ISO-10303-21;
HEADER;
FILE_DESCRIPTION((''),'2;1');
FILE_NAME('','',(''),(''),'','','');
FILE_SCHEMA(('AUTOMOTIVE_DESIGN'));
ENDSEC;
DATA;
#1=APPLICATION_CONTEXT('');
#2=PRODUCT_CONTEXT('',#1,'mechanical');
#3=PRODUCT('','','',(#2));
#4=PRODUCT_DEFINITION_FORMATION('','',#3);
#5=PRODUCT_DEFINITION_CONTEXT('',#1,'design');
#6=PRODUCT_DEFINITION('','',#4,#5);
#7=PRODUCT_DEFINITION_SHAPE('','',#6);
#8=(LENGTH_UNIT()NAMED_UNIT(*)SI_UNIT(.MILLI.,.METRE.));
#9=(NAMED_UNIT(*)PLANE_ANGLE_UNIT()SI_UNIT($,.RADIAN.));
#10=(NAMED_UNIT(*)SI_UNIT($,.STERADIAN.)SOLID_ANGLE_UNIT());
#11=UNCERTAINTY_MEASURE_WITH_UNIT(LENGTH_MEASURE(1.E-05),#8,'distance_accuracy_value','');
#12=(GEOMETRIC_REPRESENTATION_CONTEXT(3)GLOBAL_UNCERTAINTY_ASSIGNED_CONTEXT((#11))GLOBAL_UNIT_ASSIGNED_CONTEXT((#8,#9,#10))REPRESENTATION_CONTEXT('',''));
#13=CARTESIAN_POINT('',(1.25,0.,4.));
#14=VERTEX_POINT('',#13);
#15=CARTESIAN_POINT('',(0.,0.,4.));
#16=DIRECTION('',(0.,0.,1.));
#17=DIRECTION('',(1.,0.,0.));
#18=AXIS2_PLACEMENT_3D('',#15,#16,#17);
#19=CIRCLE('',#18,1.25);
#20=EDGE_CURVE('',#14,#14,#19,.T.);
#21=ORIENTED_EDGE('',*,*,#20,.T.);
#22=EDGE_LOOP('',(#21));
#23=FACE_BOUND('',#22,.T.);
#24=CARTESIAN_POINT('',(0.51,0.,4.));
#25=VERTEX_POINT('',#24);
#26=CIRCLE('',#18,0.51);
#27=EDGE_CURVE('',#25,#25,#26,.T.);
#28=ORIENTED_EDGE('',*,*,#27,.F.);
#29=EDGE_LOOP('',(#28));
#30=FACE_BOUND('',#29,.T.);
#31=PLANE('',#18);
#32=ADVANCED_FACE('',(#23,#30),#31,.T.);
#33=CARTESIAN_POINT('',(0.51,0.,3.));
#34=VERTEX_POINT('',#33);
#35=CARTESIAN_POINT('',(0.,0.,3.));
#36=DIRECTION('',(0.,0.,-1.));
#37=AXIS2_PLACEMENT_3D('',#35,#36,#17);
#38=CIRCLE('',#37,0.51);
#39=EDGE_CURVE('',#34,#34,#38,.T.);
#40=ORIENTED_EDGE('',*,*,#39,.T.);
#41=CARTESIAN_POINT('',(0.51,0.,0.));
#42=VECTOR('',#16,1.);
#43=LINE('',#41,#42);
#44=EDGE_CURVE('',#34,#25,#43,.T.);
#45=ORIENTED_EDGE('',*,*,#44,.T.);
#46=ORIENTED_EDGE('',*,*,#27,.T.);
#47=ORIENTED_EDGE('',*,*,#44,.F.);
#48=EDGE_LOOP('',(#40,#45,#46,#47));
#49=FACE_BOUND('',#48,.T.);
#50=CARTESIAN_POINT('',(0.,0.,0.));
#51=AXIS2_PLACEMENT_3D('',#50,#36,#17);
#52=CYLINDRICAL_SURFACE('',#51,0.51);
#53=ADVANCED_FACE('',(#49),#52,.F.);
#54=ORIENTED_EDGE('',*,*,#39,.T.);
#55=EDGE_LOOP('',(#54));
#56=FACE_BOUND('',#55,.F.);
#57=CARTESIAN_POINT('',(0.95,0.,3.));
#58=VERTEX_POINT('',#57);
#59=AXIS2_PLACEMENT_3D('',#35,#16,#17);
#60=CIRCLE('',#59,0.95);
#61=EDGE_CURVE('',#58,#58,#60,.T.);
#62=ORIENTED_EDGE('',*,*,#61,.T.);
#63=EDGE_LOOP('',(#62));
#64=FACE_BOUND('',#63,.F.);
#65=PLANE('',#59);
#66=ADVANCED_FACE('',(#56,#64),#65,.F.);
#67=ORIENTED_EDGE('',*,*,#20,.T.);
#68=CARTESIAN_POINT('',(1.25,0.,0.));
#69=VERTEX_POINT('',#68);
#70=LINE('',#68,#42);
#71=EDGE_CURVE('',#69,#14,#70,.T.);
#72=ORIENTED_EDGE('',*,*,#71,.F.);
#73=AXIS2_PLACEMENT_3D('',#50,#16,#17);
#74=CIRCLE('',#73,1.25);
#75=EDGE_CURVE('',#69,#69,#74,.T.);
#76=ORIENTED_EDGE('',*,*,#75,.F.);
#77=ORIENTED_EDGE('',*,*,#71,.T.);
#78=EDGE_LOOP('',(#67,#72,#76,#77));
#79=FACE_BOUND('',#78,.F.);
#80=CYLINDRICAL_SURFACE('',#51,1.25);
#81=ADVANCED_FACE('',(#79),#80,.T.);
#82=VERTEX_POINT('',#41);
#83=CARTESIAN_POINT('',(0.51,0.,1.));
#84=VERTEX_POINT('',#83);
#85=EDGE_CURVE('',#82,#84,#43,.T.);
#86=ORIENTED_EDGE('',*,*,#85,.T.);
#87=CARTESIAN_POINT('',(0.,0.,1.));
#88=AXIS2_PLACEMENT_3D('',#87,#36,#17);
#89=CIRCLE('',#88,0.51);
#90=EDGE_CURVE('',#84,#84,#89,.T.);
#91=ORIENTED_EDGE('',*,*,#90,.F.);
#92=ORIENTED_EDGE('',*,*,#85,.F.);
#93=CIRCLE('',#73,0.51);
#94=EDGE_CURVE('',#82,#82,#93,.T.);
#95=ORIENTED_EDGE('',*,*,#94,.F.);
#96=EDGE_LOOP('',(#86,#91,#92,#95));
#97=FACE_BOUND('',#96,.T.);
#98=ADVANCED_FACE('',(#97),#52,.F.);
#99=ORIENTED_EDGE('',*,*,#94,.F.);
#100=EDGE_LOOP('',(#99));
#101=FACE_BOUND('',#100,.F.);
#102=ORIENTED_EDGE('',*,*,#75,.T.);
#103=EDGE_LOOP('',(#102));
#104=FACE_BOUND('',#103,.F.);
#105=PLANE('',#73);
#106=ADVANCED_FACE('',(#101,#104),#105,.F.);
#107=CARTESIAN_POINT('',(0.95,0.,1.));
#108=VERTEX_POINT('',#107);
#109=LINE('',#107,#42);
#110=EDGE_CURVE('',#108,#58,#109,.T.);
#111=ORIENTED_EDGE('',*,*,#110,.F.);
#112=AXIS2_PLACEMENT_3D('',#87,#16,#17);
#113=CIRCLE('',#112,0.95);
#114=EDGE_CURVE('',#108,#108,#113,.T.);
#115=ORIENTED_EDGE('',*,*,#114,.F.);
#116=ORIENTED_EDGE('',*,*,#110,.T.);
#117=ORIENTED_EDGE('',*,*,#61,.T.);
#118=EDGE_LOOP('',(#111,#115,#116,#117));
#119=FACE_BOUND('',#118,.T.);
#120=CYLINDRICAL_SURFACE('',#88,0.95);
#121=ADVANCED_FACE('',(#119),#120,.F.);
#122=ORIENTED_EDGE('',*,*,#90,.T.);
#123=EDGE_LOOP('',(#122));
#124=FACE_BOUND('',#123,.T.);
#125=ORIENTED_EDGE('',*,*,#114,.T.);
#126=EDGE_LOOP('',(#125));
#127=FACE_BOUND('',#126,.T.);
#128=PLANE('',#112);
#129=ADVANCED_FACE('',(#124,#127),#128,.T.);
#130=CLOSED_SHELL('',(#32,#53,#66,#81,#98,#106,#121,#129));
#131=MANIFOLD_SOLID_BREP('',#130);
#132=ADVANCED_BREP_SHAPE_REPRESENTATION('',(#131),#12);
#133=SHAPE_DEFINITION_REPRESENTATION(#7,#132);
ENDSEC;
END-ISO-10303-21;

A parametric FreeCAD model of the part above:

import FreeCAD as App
import Part
import Sketcher
from FreeCAD import Vector
Q = App.Units.Quantity

doc = App.newDocument("Part")
body = doc.addObject("PartDesign::Body", "Body")

# Sketch on XY plane
sketch1 = doc.addObject("Sketcher::SketchObject", "Sketch")
body.addObject(sketch1)
sketch1.AttachmentSupport = (doc.XY_Plane, [""])
sketch1.MapMode = "FlatFace"
sketch1.AttachmentOffset = App.Placement(Vector(0, 0, 1), App.Rotation())
sketch1.addGeometry(Part.Circle(Vector(0, 0, 0), Vector(0, 0, 1), 0.9), False)
sketch1.addConstraint(Sketcher.Constraint("Coincident", 0, 3, -1, 1))
sketch1.addConstraint(Sketcher.Constraint("Diameter", 0, Q("1.9 mm")))
pad1 = doc.addObject("PartDesign::Pad", "Pad")
body.addObject(pad1)
pad1.Profile = sketch1
pad1.Length = 2
body2 = doc.addObject("PartDesign::Body", "Body001")

# Sketch on XY plane
sketch2 = doc.addObject("Sketcher::SketchObject", "Sketch001")
body2.addObject(sketch2)
sketch2.AttachmentSupport = (doc.getObject("XY_Plane001"), [""])
sketch2.MapMode = "FlatFace"
sketch2.addGeometry(Part.Circle(Vector(0, 0, 0), Vector(0, 0, 1), 1.2), False)
sketch2.addGeometry(Part.Circle(Vector(0, 0, 0), Vector(0, 0, 1), 0.5), False)
sketch2.addConstraint(Sketcher.Constraint("Coincident", 0, 3, -1, 1))
sketch2.addConstraint(Sketcher.Constraint("Coincident", 1, 3, -1, 1))
sketch2.addConstraint(Sketcher.Constraint("Diameter", 0, Q("2.5 mm")))
sketch2.addConstraint(Sketcher.Constraint("Diameter", 1, Q("1.02 mm")))
pad2 = doc.addObject("PartDesign::Pad", "Pad001")
body2.addObject(pad2)
pad2.Profile = sketch2
pad2.Length = 4
doc.recompute()

boolean = doc.addObject("PartDesign::Boolean", "Boolean")
body2.addObject(boolean)
boolean.Type = "Cut"
boolean.addObjects([body])

doc.recompute()
